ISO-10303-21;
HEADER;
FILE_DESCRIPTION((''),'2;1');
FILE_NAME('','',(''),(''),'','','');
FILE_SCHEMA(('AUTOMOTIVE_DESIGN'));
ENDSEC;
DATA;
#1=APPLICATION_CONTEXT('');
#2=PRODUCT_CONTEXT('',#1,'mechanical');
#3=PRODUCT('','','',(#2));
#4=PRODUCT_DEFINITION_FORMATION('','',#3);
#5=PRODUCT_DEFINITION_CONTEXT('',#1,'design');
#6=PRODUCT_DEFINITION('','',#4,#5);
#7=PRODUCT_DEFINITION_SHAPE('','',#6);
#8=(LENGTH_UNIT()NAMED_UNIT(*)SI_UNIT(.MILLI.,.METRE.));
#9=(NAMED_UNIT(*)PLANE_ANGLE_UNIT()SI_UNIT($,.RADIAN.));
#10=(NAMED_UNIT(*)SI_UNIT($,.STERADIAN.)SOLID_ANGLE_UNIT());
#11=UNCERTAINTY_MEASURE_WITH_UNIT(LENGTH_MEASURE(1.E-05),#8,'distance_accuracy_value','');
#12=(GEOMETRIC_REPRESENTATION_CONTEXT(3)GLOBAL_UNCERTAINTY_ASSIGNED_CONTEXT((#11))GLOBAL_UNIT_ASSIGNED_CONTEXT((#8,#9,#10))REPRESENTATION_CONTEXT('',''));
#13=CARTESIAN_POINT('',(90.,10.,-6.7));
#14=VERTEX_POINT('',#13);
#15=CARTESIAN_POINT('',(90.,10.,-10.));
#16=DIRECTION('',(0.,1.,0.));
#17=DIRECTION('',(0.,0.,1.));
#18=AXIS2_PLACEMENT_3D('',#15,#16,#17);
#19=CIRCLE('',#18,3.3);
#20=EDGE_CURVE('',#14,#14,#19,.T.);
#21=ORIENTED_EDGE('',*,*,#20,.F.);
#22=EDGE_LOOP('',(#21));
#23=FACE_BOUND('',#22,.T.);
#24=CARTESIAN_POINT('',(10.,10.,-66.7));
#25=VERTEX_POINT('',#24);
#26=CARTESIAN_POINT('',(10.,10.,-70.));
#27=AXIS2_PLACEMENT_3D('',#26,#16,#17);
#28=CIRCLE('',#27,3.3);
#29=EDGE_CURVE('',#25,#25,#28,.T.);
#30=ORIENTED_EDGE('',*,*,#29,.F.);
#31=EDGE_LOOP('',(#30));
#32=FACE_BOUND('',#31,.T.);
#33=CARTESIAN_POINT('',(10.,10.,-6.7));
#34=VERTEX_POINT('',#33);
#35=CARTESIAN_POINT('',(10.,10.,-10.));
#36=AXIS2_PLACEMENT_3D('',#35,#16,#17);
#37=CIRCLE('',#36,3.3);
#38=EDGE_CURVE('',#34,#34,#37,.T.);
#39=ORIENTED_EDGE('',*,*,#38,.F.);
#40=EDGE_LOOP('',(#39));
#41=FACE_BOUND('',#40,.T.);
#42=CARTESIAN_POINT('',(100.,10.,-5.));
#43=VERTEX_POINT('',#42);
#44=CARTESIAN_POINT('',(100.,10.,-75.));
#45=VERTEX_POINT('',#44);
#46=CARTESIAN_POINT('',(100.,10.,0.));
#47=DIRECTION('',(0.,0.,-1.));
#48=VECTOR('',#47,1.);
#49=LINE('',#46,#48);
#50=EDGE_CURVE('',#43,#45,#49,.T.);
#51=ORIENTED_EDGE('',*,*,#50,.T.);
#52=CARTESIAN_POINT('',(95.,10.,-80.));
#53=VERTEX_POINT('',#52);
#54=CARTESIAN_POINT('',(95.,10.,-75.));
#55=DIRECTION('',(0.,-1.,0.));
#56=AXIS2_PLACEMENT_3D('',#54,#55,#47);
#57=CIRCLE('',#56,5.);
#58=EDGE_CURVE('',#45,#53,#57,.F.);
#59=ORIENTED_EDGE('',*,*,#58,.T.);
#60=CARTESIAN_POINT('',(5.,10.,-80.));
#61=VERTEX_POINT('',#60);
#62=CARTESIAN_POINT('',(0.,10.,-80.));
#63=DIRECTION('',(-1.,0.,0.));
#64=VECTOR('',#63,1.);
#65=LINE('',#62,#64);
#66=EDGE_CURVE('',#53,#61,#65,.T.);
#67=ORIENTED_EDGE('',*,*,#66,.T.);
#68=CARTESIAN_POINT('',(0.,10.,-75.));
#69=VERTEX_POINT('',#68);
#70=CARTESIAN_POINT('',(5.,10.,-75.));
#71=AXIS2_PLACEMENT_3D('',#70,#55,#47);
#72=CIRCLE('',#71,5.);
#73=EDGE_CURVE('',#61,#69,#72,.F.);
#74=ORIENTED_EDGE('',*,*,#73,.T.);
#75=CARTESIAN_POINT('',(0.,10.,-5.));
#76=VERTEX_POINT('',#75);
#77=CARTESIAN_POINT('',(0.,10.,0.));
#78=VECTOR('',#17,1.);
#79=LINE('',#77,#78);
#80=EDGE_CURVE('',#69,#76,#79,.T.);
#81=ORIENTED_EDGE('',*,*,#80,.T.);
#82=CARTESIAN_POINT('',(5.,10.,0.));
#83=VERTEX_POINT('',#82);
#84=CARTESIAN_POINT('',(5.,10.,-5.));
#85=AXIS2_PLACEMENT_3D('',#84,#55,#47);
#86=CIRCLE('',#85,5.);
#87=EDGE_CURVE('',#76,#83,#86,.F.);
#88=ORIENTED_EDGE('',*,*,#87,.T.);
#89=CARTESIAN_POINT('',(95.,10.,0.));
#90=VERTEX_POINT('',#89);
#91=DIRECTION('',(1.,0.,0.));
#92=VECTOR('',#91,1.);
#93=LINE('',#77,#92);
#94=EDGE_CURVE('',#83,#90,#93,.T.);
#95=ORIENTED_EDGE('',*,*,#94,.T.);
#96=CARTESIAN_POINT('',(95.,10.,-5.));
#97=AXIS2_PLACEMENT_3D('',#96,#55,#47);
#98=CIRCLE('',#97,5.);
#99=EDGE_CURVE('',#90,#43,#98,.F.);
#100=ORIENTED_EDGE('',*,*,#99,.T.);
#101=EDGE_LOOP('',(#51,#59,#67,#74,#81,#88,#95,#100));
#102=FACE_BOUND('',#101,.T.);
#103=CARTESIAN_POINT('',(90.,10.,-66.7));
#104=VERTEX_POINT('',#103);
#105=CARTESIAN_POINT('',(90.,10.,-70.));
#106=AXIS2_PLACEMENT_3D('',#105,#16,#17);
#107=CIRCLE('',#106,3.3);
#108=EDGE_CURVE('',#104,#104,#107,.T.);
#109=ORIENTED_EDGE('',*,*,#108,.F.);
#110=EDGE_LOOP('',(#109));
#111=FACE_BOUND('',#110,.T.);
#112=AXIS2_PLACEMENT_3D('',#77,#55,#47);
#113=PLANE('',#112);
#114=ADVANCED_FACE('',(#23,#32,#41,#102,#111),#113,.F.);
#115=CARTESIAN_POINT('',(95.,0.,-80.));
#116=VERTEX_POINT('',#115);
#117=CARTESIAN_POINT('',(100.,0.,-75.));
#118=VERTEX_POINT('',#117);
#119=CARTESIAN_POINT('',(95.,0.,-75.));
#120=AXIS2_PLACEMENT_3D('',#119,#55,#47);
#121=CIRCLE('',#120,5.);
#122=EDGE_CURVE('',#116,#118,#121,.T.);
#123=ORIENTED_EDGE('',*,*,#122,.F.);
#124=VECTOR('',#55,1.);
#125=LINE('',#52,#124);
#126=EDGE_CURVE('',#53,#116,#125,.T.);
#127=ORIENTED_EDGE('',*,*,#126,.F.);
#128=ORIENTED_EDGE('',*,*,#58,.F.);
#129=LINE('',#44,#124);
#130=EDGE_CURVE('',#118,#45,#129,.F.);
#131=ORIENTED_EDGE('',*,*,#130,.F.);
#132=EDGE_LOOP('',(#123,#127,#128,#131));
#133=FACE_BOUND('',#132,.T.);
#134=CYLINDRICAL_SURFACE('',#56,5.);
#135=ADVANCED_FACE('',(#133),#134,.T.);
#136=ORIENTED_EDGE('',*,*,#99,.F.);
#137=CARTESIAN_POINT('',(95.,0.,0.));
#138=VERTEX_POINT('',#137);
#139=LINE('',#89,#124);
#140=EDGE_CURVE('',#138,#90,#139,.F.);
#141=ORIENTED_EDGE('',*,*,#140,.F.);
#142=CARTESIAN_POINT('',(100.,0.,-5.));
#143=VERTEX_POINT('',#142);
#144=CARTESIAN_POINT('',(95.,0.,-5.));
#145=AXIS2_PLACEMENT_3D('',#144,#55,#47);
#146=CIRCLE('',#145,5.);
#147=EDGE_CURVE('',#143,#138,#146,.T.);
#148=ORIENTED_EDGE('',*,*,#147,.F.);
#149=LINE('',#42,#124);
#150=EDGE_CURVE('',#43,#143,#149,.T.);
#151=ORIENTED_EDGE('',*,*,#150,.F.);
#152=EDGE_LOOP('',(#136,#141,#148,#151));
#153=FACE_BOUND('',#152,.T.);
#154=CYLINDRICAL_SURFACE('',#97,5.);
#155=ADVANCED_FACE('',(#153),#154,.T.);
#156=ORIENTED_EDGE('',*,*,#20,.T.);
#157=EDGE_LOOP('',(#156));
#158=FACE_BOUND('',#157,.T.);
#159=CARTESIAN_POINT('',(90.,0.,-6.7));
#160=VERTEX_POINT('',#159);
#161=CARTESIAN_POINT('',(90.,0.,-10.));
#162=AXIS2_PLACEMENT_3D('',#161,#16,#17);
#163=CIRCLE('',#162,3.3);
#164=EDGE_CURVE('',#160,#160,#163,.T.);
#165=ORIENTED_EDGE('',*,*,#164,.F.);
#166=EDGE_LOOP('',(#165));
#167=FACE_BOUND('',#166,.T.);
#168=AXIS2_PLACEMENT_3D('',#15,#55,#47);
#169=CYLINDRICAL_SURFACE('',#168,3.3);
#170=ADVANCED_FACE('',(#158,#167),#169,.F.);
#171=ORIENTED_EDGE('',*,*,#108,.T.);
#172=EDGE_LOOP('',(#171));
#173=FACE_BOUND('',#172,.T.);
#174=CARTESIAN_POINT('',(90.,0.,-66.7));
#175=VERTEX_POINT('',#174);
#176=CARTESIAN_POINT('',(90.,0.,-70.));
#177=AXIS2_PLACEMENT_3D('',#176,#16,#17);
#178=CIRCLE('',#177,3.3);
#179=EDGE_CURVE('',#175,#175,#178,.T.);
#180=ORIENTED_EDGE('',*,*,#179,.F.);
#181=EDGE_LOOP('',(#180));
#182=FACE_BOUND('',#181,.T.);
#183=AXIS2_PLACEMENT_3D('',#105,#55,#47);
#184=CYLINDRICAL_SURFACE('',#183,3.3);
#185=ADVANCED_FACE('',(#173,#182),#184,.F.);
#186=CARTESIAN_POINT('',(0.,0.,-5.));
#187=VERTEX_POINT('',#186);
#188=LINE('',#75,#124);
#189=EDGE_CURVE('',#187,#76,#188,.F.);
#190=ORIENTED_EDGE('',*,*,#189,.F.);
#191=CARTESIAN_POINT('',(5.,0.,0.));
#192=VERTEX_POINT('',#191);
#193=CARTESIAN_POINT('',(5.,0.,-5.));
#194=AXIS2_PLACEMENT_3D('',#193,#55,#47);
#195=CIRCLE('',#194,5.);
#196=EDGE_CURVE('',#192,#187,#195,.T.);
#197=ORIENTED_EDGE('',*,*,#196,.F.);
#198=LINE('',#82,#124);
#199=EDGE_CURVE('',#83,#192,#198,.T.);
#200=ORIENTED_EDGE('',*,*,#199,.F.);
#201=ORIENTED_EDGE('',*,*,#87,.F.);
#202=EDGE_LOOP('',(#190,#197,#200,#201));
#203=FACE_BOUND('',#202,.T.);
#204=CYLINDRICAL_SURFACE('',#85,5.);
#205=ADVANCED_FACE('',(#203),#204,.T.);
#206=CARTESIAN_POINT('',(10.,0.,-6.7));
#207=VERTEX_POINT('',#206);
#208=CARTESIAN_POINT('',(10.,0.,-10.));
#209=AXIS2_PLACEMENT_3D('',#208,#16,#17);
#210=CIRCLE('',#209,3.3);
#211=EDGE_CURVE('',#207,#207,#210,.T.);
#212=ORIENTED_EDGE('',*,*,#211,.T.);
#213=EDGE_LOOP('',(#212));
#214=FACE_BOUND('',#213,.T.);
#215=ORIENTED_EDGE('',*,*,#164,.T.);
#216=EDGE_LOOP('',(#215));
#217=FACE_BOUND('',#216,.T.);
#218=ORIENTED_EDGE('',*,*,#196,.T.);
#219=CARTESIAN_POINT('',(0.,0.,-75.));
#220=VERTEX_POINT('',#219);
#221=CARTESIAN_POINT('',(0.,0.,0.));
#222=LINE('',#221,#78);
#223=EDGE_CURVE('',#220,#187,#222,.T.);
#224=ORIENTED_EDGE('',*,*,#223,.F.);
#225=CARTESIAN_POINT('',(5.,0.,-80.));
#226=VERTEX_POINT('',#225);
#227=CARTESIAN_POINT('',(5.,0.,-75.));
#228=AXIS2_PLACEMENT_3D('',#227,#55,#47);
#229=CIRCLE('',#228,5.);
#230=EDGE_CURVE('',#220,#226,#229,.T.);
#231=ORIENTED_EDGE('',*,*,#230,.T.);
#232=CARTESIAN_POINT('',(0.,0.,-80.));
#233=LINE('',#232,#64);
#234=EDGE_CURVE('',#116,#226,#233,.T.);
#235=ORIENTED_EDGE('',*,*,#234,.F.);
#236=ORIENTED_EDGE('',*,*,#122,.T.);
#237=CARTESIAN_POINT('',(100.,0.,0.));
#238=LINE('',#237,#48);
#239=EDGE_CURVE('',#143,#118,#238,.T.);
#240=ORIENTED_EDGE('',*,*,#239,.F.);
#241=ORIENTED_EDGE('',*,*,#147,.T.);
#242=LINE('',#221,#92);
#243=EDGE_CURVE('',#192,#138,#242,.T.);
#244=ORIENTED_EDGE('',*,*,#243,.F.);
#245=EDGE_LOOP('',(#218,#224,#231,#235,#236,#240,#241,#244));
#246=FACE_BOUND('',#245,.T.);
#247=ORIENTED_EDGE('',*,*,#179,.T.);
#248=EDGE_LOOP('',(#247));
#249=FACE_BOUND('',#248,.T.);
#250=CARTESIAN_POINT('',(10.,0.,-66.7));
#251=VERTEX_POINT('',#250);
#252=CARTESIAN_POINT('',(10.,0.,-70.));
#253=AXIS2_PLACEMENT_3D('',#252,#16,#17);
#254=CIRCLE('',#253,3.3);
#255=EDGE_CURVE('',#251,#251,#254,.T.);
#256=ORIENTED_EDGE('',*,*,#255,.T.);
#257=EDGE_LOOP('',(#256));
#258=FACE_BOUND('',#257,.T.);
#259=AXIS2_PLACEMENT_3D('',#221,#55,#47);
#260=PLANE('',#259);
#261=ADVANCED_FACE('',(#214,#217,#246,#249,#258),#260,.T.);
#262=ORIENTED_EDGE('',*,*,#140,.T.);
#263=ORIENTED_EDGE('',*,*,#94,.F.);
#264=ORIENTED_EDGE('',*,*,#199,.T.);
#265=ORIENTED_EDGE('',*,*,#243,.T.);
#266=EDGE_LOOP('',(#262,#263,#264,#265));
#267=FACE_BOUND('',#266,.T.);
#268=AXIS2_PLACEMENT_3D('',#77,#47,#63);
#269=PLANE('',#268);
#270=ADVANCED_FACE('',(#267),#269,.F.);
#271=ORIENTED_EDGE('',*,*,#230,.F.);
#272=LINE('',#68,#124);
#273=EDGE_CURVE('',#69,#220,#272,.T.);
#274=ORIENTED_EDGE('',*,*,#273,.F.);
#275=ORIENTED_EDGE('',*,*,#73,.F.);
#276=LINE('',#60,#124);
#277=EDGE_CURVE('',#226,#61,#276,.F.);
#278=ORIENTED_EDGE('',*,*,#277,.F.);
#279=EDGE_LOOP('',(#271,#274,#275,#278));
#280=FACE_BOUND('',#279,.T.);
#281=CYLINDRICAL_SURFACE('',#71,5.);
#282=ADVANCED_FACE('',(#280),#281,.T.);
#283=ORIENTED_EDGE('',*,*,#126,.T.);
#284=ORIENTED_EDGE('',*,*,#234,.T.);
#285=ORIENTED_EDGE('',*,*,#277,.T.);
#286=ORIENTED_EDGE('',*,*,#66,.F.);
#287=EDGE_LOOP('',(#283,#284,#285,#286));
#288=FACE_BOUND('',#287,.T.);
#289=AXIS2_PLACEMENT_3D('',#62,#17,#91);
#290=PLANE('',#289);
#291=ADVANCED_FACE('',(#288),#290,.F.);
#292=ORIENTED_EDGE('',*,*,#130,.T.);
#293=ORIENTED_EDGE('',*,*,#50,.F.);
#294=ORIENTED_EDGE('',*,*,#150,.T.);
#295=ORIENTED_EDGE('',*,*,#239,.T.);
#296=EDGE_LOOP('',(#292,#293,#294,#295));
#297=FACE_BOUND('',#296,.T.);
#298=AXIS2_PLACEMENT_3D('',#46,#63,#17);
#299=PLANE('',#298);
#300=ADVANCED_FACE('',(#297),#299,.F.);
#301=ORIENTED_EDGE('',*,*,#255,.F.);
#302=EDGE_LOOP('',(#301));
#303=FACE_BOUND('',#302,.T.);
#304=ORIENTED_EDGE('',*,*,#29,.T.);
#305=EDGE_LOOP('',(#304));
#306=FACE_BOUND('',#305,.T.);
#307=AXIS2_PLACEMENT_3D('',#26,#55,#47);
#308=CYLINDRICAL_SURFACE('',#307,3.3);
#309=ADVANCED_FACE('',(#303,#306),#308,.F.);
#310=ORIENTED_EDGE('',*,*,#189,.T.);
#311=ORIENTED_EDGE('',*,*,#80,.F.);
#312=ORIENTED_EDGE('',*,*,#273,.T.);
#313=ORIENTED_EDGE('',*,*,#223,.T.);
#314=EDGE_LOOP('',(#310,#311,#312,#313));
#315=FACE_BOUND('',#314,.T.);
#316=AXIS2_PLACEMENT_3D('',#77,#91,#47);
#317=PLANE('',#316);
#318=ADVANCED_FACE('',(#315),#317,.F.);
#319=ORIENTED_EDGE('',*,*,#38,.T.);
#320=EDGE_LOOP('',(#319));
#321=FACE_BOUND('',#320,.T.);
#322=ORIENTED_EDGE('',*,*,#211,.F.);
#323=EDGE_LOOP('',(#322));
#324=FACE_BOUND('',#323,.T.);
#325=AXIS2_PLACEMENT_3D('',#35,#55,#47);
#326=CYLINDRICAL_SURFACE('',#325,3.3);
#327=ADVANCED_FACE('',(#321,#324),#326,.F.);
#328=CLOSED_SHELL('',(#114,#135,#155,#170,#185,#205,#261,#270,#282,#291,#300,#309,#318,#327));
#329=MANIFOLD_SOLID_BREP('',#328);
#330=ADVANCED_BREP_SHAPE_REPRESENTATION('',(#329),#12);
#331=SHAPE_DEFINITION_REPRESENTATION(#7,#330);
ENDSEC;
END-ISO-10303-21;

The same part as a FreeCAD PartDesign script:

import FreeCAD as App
import Part
import Sketcher

V = App.Vector
Q = App.Units.Quantity


def edges_at(feature, points):
    """Names of the edges that pass closest to the given points."""
    edges = feature.Shape.Edges
    near = lambda p: min(range(len(edges)), key=lambda i: edges[i].distToShape(Part.Vertex(*p))[0])
    return sorted({f"Edge{near(p) + 1}" for p in points})


def add_polygon(sketch, points):
    """Adds a closed chain of lines whose ends are joined by coincident constraints."""
    first, n = sketch.GeometryCount, len(points)
    for a, b in zip(points, points[1:] + points[:1]):
        sketch.addGeometry(Part.LineSegment(App.Vector(*a, 0), App.Vector(*b, 0)), False)
    for i in range(n):
        sketch.addConstraint(Sketcher.Constraint("Coincident", first + i, 2, first + (i + 1) % n, 1))

doc = App.newDocument("Part")
body = doc.addObject("PartDesign::Body", "Body")

sketch1 = body.newObject("Sketcher::SketchObject", "Sketch")
sketch1.AttachmentSupport = (doc.getObject("XZ_Plane"), [""])
sketch1.MapMode = "FlatFace"
add_polygon(sketch1, [(0, -80), (0, 0), (100, 0), (100, -80)])
sketch1.addConstraint([
    Sketcher.Constraint("Vertical", 0),
    Sketcher.Constraint("Horizontal", 1),
    Sketcher.Constraint("Vertical", 2),
    Sketcher.Constraint("Horizontal", 3),
    Sketcher.Constraint("Coincident", 0, 2, -1, 1),
    Sketcher.Constraint("DistanceX", 1, 1, 1, 2, Q("100 mm")),
    Sketcher.Constraint("DistanceY", 0, 1, 0, 2, Q("80 mm")),
])
pad1 = body.newObject("PartDesign::Pad", "Pad")
pad1.Profile = sketch1
pad1.Length = 10
pad1.Reversed = True

sketch2 = body.newObject("Sketcher::SketchObject", "Sketch001")
sketch2.AttachmentSupport = (doc.getObject("XZ_Plane"), [""])
sketch2.MapMode = "FlatFace"
sketch2.addGeometry([
    Part.Circle(V(10, -10, 0), V(0, 0, 1), 3.3),
    Part.Circle(V(90, -10, 0), V(0, 0, 1), 3.3),
    Part.Circle(V(10, -70, 0), V(0, 0, 1), 3.3),
    Part.Circle(V(90, -70, 0), V(0, 0, 1), 3.3),
], False)
sketch2.addConstraint([
    Sketcher.Constraint("Equal", 0, 1),
    Sketcher.Constraint("Equal", 1, 2),
    Sketcher.Constraint("Equal", 2, 3),
    Sketcher.Constraint("Horizontal", 0, 3, 1, 3),
    Sketcher.Constraint("Horizontal", 2, 3, 3, 3),
    Sketcher.Constraint("Vertical", 0, 3, 2, 3),
    Sketcher.Constraint("Vertical", 1, 3, 3, 3),
    Sketcher.Constraint("Diameter", 0, Q("6.6 mm")),
    Sketcher.Constraint("DistanceX", -1, 1, 0, 3, Q("10 mm")),
    Sketcher.Constraint("DistanceY", 0, 3, -1, 1, Q("10 mm")),
    Sketcher.Constraint("DistanceX", -1, 1, 1, 3, Q("90 mm")),
    Sketcher.Constraint("DistanceY", 2, 3, -1, 1, Q("70 mm")),
])
pocket1 = body.newObject("PartDesign::Pocket", "Pocket")
pocket1.Profile = sketch2
pocket1.Type = "ThroughAll"
doc.recompute()

fillet = body.newObject("PartDesign::Fillet", "Fillet")
fillet.Base = (pocket1, edges_at(pocket1, [
    (0, 5, -80),
    (100, 5, -80),
    (100, 5, 0),
    (0, 5, 0),
]))
fillet.Radius = 5

doc.recompute()
